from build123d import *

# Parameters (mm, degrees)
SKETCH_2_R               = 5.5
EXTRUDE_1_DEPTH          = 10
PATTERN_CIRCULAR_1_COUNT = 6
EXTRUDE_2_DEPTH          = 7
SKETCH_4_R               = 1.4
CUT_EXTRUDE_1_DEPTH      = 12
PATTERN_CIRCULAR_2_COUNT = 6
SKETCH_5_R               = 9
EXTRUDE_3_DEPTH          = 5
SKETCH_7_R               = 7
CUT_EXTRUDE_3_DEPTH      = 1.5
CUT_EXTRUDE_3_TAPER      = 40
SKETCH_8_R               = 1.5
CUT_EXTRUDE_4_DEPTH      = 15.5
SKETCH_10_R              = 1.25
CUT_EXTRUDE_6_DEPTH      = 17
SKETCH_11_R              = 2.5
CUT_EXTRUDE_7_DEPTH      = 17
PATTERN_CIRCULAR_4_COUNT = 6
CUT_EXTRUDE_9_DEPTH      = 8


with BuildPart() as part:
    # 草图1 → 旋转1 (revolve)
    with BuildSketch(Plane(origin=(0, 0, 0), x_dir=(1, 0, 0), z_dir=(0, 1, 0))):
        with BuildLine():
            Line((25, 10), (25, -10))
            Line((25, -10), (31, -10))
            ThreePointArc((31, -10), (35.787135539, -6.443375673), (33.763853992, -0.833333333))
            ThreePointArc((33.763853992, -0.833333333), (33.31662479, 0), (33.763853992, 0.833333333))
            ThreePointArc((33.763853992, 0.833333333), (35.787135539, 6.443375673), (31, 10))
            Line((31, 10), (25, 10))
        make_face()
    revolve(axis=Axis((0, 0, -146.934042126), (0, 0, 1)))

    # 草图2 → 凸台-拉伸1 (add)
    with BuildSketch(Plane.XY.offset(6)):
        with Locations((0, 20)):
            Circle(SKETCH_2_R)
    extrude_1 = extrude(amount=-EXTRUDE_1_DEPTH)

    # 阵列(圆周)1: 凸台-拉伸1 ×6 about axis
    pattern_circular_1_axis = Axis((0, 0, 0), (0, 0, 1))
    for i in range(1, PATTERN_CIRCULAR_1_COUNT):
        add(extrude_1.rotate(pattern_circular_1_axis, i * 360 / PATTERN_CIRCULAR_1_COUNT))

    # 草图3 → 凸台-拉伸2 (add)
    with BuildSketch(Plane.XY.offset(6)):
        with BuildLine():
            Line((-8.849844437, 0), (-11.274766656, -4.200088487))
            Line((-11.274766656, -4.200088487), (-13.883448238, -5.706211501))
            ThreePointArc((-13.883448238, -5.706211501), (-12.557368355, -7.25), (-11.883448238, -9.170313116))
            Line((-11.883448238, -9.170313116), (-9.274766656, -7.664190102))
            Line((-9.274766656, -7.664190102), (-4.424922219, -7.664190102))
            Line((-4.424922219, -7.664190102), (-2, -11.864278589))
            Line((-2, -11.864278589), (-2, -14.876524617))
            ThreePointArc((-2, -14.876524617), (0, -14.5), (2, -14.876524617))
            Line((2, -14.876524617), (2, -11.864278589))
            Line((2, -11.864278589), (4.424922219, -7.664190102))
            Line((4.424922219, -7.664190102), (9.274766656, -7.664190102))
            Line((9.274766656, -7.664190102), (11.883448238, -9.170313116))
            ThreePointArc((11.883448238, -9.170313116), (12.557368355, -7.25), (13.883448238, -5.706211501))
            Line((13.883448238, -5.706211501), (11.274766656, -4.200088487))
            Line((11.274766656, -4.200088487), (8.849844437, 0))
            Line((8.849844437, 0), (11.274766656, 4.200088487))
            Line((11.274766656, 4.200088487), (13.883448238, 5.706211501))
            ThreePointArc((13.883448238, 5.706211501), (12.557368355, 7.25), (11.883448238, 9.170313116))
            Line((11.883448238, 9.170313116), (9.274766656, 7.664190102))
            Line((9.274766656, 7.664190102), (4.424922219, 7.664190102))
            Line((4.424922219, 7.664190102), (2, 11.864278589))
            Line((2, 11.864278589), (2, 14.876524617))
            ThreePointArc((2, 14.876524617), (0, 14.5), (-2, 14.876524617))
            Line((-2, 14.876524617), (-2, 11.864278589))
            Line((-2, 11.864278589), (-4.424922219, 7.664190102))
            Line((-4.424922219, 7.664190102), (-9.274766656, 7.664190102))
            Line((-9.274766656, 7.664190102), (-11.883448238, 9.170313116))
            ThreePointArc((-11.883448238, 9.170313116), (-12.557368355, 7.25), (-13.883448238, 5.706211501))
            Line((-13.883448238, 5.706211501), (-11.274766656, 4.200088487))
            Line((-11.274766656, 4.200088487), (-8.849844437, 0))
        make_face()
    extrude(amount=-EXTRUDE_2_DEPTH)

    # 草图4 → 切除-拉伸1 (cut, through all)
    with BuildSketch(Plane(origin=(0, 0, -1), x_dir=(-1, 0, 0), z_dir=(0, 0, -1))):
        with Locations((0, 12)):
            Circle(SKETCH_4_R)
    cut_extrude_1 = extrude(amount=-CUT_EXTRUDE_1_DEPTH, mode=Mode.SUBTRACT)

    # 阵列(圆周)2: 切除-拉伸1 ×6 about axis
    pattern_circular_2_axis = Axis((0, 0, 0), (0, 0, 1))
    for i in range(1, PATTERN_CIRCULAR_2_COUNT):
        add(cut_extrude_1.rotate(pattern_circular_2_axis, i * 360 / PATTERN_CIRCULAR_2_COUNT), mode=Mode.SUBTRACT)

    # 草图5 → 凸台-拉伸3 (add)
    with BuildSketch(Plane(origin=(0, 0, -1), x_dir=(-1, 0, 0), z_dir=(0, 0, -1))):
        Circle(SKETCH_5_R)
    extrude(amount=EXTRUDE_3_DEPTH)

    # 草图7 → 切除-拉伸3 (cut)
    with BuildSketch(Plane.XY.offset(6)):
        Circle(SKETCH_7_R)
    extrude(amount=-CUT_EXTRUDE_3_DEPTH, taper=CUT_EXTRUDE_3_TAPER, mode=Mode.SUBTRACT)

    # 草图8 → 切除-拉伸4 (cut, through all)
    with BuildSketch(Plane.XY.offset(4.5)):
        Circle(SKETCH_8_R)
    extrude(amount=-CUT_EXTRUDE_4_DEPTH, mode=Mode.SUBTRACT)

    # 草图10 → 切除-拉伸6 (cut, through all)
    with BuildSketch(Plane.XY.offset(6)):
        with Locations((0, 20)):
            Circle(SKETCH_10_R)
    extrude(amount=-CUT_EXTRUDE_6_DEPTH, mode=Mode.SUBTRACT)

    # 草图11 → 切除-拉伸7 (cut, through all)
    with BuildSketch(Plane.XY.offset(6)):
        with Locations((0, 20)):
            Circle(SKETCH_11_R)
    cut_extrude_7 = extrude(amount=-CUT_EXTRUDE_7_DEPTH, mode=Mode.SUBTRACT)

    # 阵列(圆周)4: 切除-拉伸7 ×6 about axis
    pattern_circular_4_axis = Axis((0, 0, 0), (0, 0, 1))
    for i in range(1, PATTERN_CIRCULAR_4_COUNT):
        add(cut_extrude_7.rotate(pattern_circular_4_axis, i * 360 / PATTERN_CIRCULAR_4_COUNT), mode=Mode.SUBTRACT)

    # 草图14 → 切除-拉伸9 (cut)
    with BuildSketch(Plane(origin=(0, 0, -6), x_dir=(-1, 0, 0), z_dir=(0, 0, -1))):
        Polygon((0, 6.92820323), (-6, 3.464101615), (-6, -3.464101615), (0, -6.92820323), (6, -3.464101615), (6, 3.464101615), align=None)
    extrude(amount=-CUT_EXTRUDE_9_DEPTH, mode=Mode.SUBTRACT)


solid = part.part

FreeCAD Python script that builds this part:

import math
import FreeCAD as App
import Part
import Sketcher
from FreeCAD import Vector
Q = App.Units.Quantity

doc = App.newDocument("Part")
params = doc.addObject("Spreadsheet::Sheet", "Params")
for row, (alias, value) in enumerate([
    ("sketch1_radius", "5 mm"),
    ("sketch1_radius2", "1 mm"),
    ("sketch1_width", "6 mm"),
    ("sketch1_height", "20 mm"),
    ("revolution_angle", "360 deg"),
    ("sketch2_diameter", "11 mm"),
    ("pad1_length", "10 mm"),
    ("sketch3_radius", "5.5 mm"),
    ("pad2_length", "7 mm"),
    ("sketch4_diameter", "2.8 mm"),
    ("sketch5_diameter", "18 mm"),
    ("pad3_length", "5 mm"),
    ("sketch6_diameter", "14 mm"),
    ("pocket2_length", "1.5 mm"),
    ("pocket2_taper", "-40 deg"),
    ("sketch7_diameter", "3 mm"),
    ("sketch8_diameter", "2.5 mm"),
    ("sketch9_diameter", "5 mm"),
    ("pocket6_length", "8 mm"),
], start=1):
    params.set(f"A{row}", alias)
    params.set(f"B{row}", "=" + value)
    params.setAlias(f"B{row}", alias)

body = doc.addObject("PartDesign::Body", "Body")

sketch1 = body.newObject("Sketcher::SketchObject", "Sketch")
sketch1.AttachmentSupport = (doc.getObject("XZ_Plane"), [""])
sketch1.MapMode = "FlatFace"
sketch1.addGeometry([
    Part.LineSegment(Vector(25, -10, 0), Vector(25, 10, 0)),
    Part.LineSegment(Vector(25, 10, 0), Vector(31, 10, 0)),
    Part.ArcOfCircle(Part.Circle(Vector(31, 5, 0), Vector(0, 0, 1), 5), math.radians(-56), math.radians(90)),
    Part.ArcOfCircle(Part.Circle(Vector(34.3, 0, 0), Vector(0, 0, 1), 1), math.radians(124), math.radians(236)),
    Part.ArcOfCircle(Part.Circle(Vector(31, -5, 0), Vector(0, 0, 1), 5), math.radians(-90), math.radians(56)),
    Part.LineSegment(Vector(31, -10, 0), Vector(25, -10, 0)),
], False)
sketch1.addConstraint([
    Sketcher.Constraint("Coincident", 0, 2, 1, 1),
    Sketcher.Constraint("Tangent", 1, 2, 2, 2),
    Sketcher.Constraint("Tangent", 2, 1, 3, 1),
    Sketcher.Constraint("Tangent", 3, 2, 4, 2),
    Sketcher.Constraint("Tangent", 4, 1, 5, 1),
    Sketcher.Constraint("Coincident", 5, 2, 0, 1),
    Sketcher.Constraint("Vertical", 0),
    Sketcher.Constraint("Horizontal", 1),
    Sketcher.Constraint("Horizontal", 5),
    Sketcher.Constraint("Equal", 2, 4),
    Sketcher.Constraint("Symmetric", 2, 3, 4, 3, -1),
    Sketcher.Constraint("Radius", 2, 5.0),
    Sketcher.Constraint("Radius", 3, 1.0),
    Sketcher.Constraint("DistanceX", 1, 1, 1, 2, 6.0),
    Sketcher.Constraint("DistanceY", 0, 1, 0, 2, 20.0),
    Sketcher.Constraint("DistanceX", -1, 1, 2, 3, 31.0),
])
sketch1.setExpression("Constraints[11]", "Params.sketch1_radius")
sketch1.setExpression("Constraints[12]", "Params.sketch1_radius2")
sketch1.setExpression("Constraints[13]", "Params.sketch1_width")
sketch1.setExpression("Constraints[14]", "Params.sketch1_height")
revolution = body.newObject("PartDesign::Revolution", "Revolution")
revolution.Profile = sketch1
revolution.ReferenceAxis = (sketch1, ["V_Axis"])
revolution.setExpression("Angle", "Params.revolution_angle")

sketch2 = body.newObject("Sketcher::SketchObject", "Sketch001")
sketch2.AttachmentSupport = (doc.getObject("XY_Plane"), [""])
sketch2.MapMode = "FlatFace"
sketch2.AttachmentOffset = App.Placement(Vector(0, 0, 6), App.Rotation())
sketch2.addGeometry(Part.Circle(Vector(0, 20, 0), Vector(0, 0, 1), 6), False)
sketch2.addConstraint([
    Sketcher.Constraint("PointOnObject", 0, 3, -2),
    Sketcher.Constraint("Diameter", 0, 11.0),
    Sketcher.Constraint("DistanceY", -1, 1, 0, 3, 20.0),
])
sketch2.setExpression("Constraints[1]", "Params.sketch2_diameter")
pad1 = body.newObject("PartDesign::Pad", "Pad")
pad1.Profile = sketch2
pad1.setExpression("Length", "Params.pad1_length")
pad1.Reversed = True
doc.recompute()

polarpattern = body.newObject("PartDesign::PolarPattern", "PolarPattern")
polarpattern.Originals = [pad1]
polarpattern.Axis = (doc.getObject("Z_Axis"), [""])
polarpattern.Angle = 360
polarpattern.Occurrences = 6
body.Tip = polarpattern

sketch3 = body.newObject("Sketcher::SketchObject", "Sketch002")
sketch3.AttachmentSupport = (doc.getObject("XY_Plane"), [""])
sketch3.MapMode = "FlatFace"
sketch3.AttachmentOffset = App.Placement(Vector(0, 0, 6), App.Rotation())
sketch3.addGeometry([
    Part.LineSegment(Vector(-8.8, 0, 0), Vector(-11.3, -4.2, 0)),
    Part.LineSegment(Vector(-11.3, -4.2, 0), Vector(-13.9, -5.7, 0)),
    Part.ArcOfCircle(Part.Circle(Vector(-17.3, -10, 0), Vector(0, 0, 1), 5.5), math.radians(9), math.radians(51)),
    Part.LineSegment(Vector(-11.9, -9.2, 0), Vector(-9.3, -7.7, 0)),
    Part.LineSegment(Vector(-9.3, -7.7, 0), Vector(-4.4, -7.7, 0)),
    Part.LineSegment(Vector(-4.4, -7.7, 0), Vector(-2, -11.9, 0)),
    Part.LineSegment(Vector(-2, -11.9, 0), Vector(-2, -14.9, 0)),
    Part.ArcOfCircle(Part.Circle(Vector(0, -20, 0), Vector(0, 0, 1), 5.5), math.radians(69), math.radians(111)),
    Part.LineSegment(Vector(2, -14.9, 0), Vector(2, -11.9, 0)),
    Part.LineSegment(Vector(2, -11.9, 0), Vector(4.4, -7.7, 0)),
    Part.LineSegment(Vector(4.4, -7.7, 0), Vector(9.3, -7.7, 0)),
    Part.LineSegment(Vector(9.3, -7.7, 0), Vector(11.9, -9.2, 0)),
    Part.ArcOfCircle(Part.Circle(Vector(17.3, -10, 0), Vector(0, 0, 1), 5.5), math.radians(129), math.radians(171)),
    Part.LineSegment(Vector(13.9, -5.7, 0), Vector(11.3, -4.2, 0)),
    Part.LineSegment(Vector(11.3, -4.2, 0), Vector(8.8, 0, 0)),
    Part.LineSegment(Vector(8.8, 0, 0), Vector(11.3, 4.2, 0)),
    Part.LineSegment(Vector(11.3, 4.2, 0), Vector(13.9, 5.7, 0)),
    Part.ArcOfCircle(Part.Circle(Vector(17.3, 10, 0), Vector(0, 0, 1), 5.5), math.radians(-171), math.radians(-129)),
    Part.LineSegment(Vector(11.9, 9.2, 0), Vector(9.3, 7.7, 0)),
    Part.LineSegment(Vector(9.3, 7.7, 0), Vector(4.4, 7.7, 0)),
    Part.LineSegment(Vector(4.4, 7.7, 0), Vector(2, 11.9, 0)),
    Part.LineSegment(Vector(2, 11.9, 0), Vector(2, 14.9, 0)),
    Part.ArcOfCircle(Part.Circle(Vector(0, 20, 0), Vector(0, 0, 1), 5.5), math.radians(-111), math.radians(-69)),
    Part.LineSegment(Vector(-2, 14.9, 0), Vector(-2, 11.9, 0)),
    Part.LineSegment(Vector(-2, 11.9, 0), Vector(-4.4, 7.7, 0)),
    Part.LineSegment(Vector(-4.4, 7.7, 0), Vector(-9.3, 7.7, 0)),
    Part.LineSegment(Vector(-9.3, 7.7, 0), Vector(-11.9, 9.2, 0)),
    Part.ArcOfCircle(Part.Circle(Vector(-17.3, 10, 0), Vector(0, 0, 1), 5.5), math.radians(-51), math.radians(-9)),
    Part.LineSegment(Vector(-13.9, 5.7, 0), Vector(-11.3, 4.2, 0)),
    Part.LineSegment(Vector(-11.3, 4.2, 0), Vector(-8.8, 0, 0)),
], False)
sketch3.addConstraint([
    Sketcher.Constraint("Coincident", 0, 2, 1, 1),
    Sketcher.Constraint("Coincident", 1, 2, 2, 2),
    Sketcher.Constraint("Coincident", 2, 1, 3, 1),
    Sketcher.Constraint("Coincident", 3, 2, 4, 1),
    Sketcher.Constraint("Coincident", 4, 2, 5, 1),
    Sketcher.Constraint("Coincident", 5, 2, 6, 1),
    Sketcher.Constraint("Coincident", 6, 2, 7, 2),
    Sketcher.Constraint("Coincident", 7, 1, 8, 1),
    Sketcher.Constraint("Coincident", 8, 2, 9, 1),
    Sketcher.Constraint("Coincident", 9, 2, 10, 1),
    Sketcher.Constraint("Coincident", 10, 2, 11, 1),
    Sketcher.Constraint("Coincident", 11, 2, 12, 2),
    Sketcher.Constraint("Coincident", 12, 1, 13, 1),
    Sketcher.Constraint("Coincident", 13, 2, 14, 1),
    Sketcher.Constraint("Coincident", 14, 2, 15, 1),
    Sketcher.Constraint("Coincident", 15, 2, 16, 1),
    Sketcher.Constraint("Coincident", 16, 2, 17, 2),
    Sketcher.Constraint("Coincident", 17, 1, 18, 1),
    Sketcher.Constraint("Coincident", 18, 2, 19, 1),
    Sketcher.Constraint("Coincident", 19, 2, 20, 1),
    Sketcher.Constraint("Coincident", 20, 2, 21, 1),
    Sketcher.Constraint("Coincident", 21, 2, 22, 2),
    Sketcher.Constraint("Coincident", 22, 1, 23, 1),
    Sketcher.Constraint("Coincident", 23, 2, 24, 1),
    Sketcher.Constraint("Coincident", 24, 2, 25, 1),
    Sketcher.Constraint("Coincident", 25, 2, 26, 1),
    Sketcher.Constraint("Coincident", 26, 2, 27, 2),
    Sketcher.Constraint("Coincident", 27, 1, 28, 1),
    Sketcher.Constraint("Coincident", 28, 2, 29, 1),
    Sketcher.Constraint("Coincident", 29, 2, 0, 1),
    Sketcher.Constraint("Horizontal", 4),
    Sketcher.Constraint("Vertical", 6),
    Sketcher.Constraint("Vertical", 8),
    Sketcher.Constraint("Horizontal", 10),
    Sketcher.Constraint("Horizontal", 19),
    Sketcher.Constraint("Vertical", 21),
    Sketcher.Constraint("Vertical", 23),
    Sketcher.Constraint("Horizontal", 25),
    Sketcher.Constraint("Equal", 2, 7),
    Sketcher.Constraint("Equal", 7, 12),
    Sketcher.Constraint("Equal", 12, 17),
    Sketcher.Constraint("Equal", 17, 22),
    Sketcher.Constraint("Equal", 22, 27),
    Sketcher.Constraint("Symmetric", 2, 3, 17, 3, -1, 1),
    Sketcher.Constraint("Symmetric", 7, 3, 22, 3, -1, 1),
    Sketcher.Constraint("Symmetric", 12, 3, 27, 3, -1, 1),
    Sketcher.Constraint("Symmetric", 0, 2, 15, 2, -1, 1),
    Sketcher.Constraint("Symmetric", 3, 2, 18, 2, -1, 1),
    Sketcher.Constraint("Symmetric", 5, 2, 20, 2, -1, 1),
    Sketcher.Constraint("Symmetric", 8, 2, 23, 2, -1, 1),
    Sketcher.Constraint("Symmetric", 9, 2, 24, 2, -1, 1),
    Sketcher.Constraint("Symmetric", 13, 2, 28, 2, -1, 1),
    Sketcher.Constraint("Symmetric", 14, 2, 29, 2, -1, 1),
    Sketcher.Constraint("Symmetric", 2, 3, 12, 3, -2),
    Sketcher.Constraint("Symmetric", 6, 2, 7, 1, -2),
    Sketcher.Constraint("Symmetric", 4, 2, 9, 2, -2),
    Sketcher.Constraint("Symmetric", 0, 2, 13, 2, -2),
    Sketcher.Constraint("PointOnObject", 14, 2, -1),
    Sketcher.Constraint("Parallel", 1, 3),
    Sketcher.Constraint("Perpendicular", 3, 5),
    Sketcher.Constraint("Parallel", 0, 9),
    Sketcher.Constraint("Perpendicular", 9, 11),
    Sketcher.Constraint("Parallel", 11, 13),
    Sketcher.Constraint("Parallel", 5, 14),
    Sketcher.Constraint("Perpendicular", 14, 16),
    Sketcher.Constraint("Parallel", 16, 18),
    Sketcher.Constraint("Perpendicular", 18, 20),
    Sketcher.Constraint("Perpendicular", 24, 26),
    Sketcher.Constraint("Parallel", 26, 28),
    Sketcher.Constraint("Horizontal", 2, 1, 11, 2),
    Sketcher.Constraint("Horizontal", 17, 1, 26, 2),
    Sketcher.Constraint("Equal", 1, 3),
    Sketcher.Constraint("Equal", 0, 5),
    Sketcher.Constraint("Radius", 2, 5.5),
    Sketcher.Constraint("Angle", 0, Q("-120 deg")),
    Sketcher.Constraint("DistanceY", 2, 3, -1, 1, 10.0),
    Sketcher.Constraint("DistanceY", 7, 3, -1, 1, 20.0),
    Sketcher.Constraint("DistanceX", 5, 2, -1, 1, 2.0),
    Sketcher.Constraint("DistanceX", 1, 2, 2, 1, 2.0),
    Sketcher.Constraint("DistanceY", 2, 1, 1, 2, 3.464102),
    Sketcher.Constraint("DistanceY", 12, 1, 15, 2, 9.9063),
    Sketcher.Constraint("DistanceX", 4, 1, 4, 2, 4.849844),
])
sketch3.setExpression("Constraints[73]", "Params.sketch3_radius")
pad2 = body.newObject("PartDesign::Pad", "Pad001")
pad2.Profile = sketch3
pad2.setExpression("Length", "Params.pad2_length")
pad2.Reversed = True

sketch4 = body.newObject("Sketcher::SketchObject", "Sketch003")
sketch4.AttachmentSupport = (doc.getObject("XY_Plane"), [""])
sketch4.MapMode = "FlatFace"
sketch4.AttachmentOffset = App.Placement(Vector(0, 0, -1), App.Rotation())
sketch4.addGeometry(Part.Circle(Vector(0, 12, 0), Vector(0, 0, 1), 1.4), False)
sketch4.addConstraint([
    Sketcher.Constraint("PointOnObject", 0, 3, -2),
    Sketcher.Constraint("Diameter", 0, 2.8),
    Sketcher.Constraint("DistanceY", -1, 1, 0, 3, 12.0),
])
sketch4.setExpression("Constraints[1]", "Params.sketch4_diameter")
pocket1 = body.newObject("PartDesign::Pocket", "Pocket")
pocket1.Profile = sketch4
pocket1.Type = "ThroughAll"
pocket1.Reversed = True
doc.recompute()

polarpattern2 = body.newObject("PartDesign::PolarPattern", "PolarPattern001")
polarpattern2.Originals = [pocket1]
polarpattern2.Axis = (doc.getObject("Z_Axis"), [""])
polarpattern2.Angle = 360
polarpattern2.Occurrences = 6
body.Tip = polarpattern2

sketch5 = body.newObject("Sketcher::SketchObject", "Sketch004")
sketch5.AttachmentSupport = (doc.getObject("XY_Plane"), [""])
sketch5.MapMode = "FlatFace"
sketch5.AttachmentOffset = App.Placement(Vector(0, 0, -1), App.Rotation())
sketch5.addGeometry(Part.Circle(Vector(0, 0, 0), Vector(0, 0, 1), 9), False)
sketch5.addConstraint([
    Sketcher.Constraint("Coincident", 0, 3, -1, 1),
    Sketcher.Constraint("Diameter", 0, 18.0),
])
sketch5.setExpression("Constraints[1]", "Params.sketch5_diameter")
pad3 = body.newObject("PartDesign::Pad", "Pad002")
pad3.Profile = sketch5
pad3.setExpression("Length", "Params.pad3_length")
pad3.Reversed = True

sketch6 = body.newObject("Sketcher::SketchObject", "Sketch005")
sketch6.AttachmentSupport = (doc.getObject("XY_Plane"), [""])
sketch6.MapMode = "FlatFace"
sketch6.AttachmentOffset = App.Placement(Vector(0, 0, 6), App.Rotation())
sketch6.addGeometry(Part.Circle(Vector(0, 0, 0), Vector(0, 0, 1), 7), False)
sketch6.addConstraint([
    Sketcher.Constraint("Coincident", 0, 3, -1, 1),
    Sketcher.Constraint("Diameter", 0, 14.0),
])
sketch6.setExpression("Constraints[1]", "Params.sketch6_diameter")
pocket2 = body.newObject("PartDesign::Pocket", "Pocket001")
pocket2.Profile = sketch6
pocket2.setExpression("Length", "Params.pocket2_length")
pocket2.setExpression("TaperAngle", "Params.pocket2_taper")

sketch7 = body.newObject("Sketcher::SketchObject", "Sketch006")
sketch7.AttachmentSupport = (doc.getObject("XY_Plane"), [""])
sketch7.MapMode = "FlatFace"
sketch7.AttachmentOffset = App.Placement(Vector(0, 0, 4.5), App.Rotation())
sketch7.addGeometry(Part.Circle(Vector(0, 0, 0), Vector(0, 0, 1), 1.5), False)
sketch7.addConstraint([
    Sketcher.Constraint("Coincident", 0, 3, -1, 1),
    Sketcher.Constraint("Diameter", 0, 3.0),
])
sketch7.setExpression("Constraints[1]", "Params.sketch7_diameter")
pocket3 = body.newObject("PartDesign::Pocket", "Pocket002")
pocket3.Profile = sketch7
pocket3.Type = "ThroughAll"

sketch8 = body.newObject("Sketcher::SketchObject", "Sketch007")
sketch8.AttachmentSupport = (doc.getObject("XY_Plane"), [""])
sketch8.MapMode = "FlatFace"
sketch8.AttachmentOffset = App.Placement(Vector(0, 0, 6), App.Rotation())
sketch8.addGeometry(Part.Circle(Vector(0, 20, 0), Vector(0, 0, 1), 1.2), False)
sketch8.addConstraint([
    Sketcher.Constraint("PointOnObject", 0, 3, -2),
    Sketcher.Constraint("Diameter", 0, 2.5),
    Sketcher.Constraint("DistanceY", -1, 1, 0, 3, 20.0),
])
sketch8.setExpression("Constraints[1]", "Params.sketch8_diameter")
pocket4 = body.newObject("PartDesign::Pocket", "Pocket003")
pocket4.Profile = sketch8
pocket4.Type = "ThroughAll"

sketch9 = body.newObject("Sketcher::SketchObject", "Sketch008")
sketch9.AttachmentSupport = (doc.getObject("XY_Plane"), [""])
sketch9.MapMode = "FlatFace"
sketch9.AttachmentOffset = App.Placement(Vector(0, 0, 6), App.Rotation())
sketch9.addGeometry(Part.Circle(Vector(0, 20, 0), Vector(0, 0, 1), 2.5), False)
sketch9.addConstraint([
    Sketcher.Constraint("PointOnObject", 0, 3, -2),
    Sketcher.Constraint("Diameter", 0, 5.0),
    Sketcher.Constraint("DistanceY", -1, 1, 0, 3, 20.0),
])
sketch9.setExpression("Constraints[1]", "Params.sketch9_diameter")
pocket5 = body.newObject("PartDesign::Pocket", "Pocket004")
pocket5.Profile = sketch9
pocket5.Type = "ThroughAll"
doc.recompute()

polarpattern3 = body.newObject("PartDesign::PolarPattern", "PolarPattern002")
polarpattern3.Originals = [pocket5]
polarpattern3.Axis = (doc.getObject("Z_Axis"), [""])
polarpattern3.Angle = 360
polarpattern3.Occurrences = 6
body.Tip = polarpattern3

sketch10 = body.newObject("Sketcher::SketchObject", "Sketch009")
sketch10.AttachmentSupport = (doc.getObject("XY_Plane"), [""])
sketch10.MapMode = "FlatFace"
sketch10.AttachmentOffset = App.Placement(Vector(0, 0, -6), App.Rotation())
sketch10.addGeometry([
    Part.LineSegment(Vector(0, 7, 0), Vector(6, 3, 0)),
    Part.LineSegment(Vector(6, 3, 0), Vector(6, -3, 0)),
    Part.LineSegment(Vector(6, -3, 0), Vector(0, -7, 0)),
    Part.LineSegment(Vector(0, -7, 0), Vector(-6, -3, 0)),
    Part.LineSegment(Vector(-6, -3, 0), Vector(-6, 3, 0)),
    Part.LineSegment(Vector(-6, 3, 0), Vector(0, 7, 0)),
], False)
sketch10.addConstraint([
    Sketcher.Constraint("Coincident", 0, 2, 1, 1),
    Sketcher.Constraint("Coincident", 1, 2, 2, 1),
    Sketcher.Constraint("Coincident", 2, 2, 3, 1),
    Sketcher.Constraint("Coincident", 3, 2, 4, 1),
    Sketcher.Constraint("Coincident", 4, 2, 5, 1),
    Sketcher.Constraint("Coincident", 5, 2, 0, 1),
    Sketcher.Constraint("Vertical", 1),
    Sketcher.Constraint("Vertical", 4),
    Sketcher.Constraint("Symmetric", 0, 2, 3, 2, -1, 1),
    Sketcher.Constraint("Symmetric", 2, 2, 5, 2, -1, 1),
    Sketcher.Constraint("PointOnObject", 2, 2, -2),
    Sketcher.Constraint("Parallel", 2, 5),
    Sketcher.Constraint("Horizontal", 1, 2, 3, 2),
    Sketcher.Constraint("Angle", 0, Q("-30 deg")),
    Sketcher.Constraint("DistanceX", -1, 1, 0, 2, 6.0),
    Sketcher.Constraint("DistanceY", -1, 1, 0, 2, 3.464102),
])
pocket6 = body.newObject("PartDesign::Pocket", "Pocket005")
pocket6.Profile = sketch10
pocket6.setExpression("Length", "Params.pocket6_length")
pocket6.Reversed = True

doc.recompute()
